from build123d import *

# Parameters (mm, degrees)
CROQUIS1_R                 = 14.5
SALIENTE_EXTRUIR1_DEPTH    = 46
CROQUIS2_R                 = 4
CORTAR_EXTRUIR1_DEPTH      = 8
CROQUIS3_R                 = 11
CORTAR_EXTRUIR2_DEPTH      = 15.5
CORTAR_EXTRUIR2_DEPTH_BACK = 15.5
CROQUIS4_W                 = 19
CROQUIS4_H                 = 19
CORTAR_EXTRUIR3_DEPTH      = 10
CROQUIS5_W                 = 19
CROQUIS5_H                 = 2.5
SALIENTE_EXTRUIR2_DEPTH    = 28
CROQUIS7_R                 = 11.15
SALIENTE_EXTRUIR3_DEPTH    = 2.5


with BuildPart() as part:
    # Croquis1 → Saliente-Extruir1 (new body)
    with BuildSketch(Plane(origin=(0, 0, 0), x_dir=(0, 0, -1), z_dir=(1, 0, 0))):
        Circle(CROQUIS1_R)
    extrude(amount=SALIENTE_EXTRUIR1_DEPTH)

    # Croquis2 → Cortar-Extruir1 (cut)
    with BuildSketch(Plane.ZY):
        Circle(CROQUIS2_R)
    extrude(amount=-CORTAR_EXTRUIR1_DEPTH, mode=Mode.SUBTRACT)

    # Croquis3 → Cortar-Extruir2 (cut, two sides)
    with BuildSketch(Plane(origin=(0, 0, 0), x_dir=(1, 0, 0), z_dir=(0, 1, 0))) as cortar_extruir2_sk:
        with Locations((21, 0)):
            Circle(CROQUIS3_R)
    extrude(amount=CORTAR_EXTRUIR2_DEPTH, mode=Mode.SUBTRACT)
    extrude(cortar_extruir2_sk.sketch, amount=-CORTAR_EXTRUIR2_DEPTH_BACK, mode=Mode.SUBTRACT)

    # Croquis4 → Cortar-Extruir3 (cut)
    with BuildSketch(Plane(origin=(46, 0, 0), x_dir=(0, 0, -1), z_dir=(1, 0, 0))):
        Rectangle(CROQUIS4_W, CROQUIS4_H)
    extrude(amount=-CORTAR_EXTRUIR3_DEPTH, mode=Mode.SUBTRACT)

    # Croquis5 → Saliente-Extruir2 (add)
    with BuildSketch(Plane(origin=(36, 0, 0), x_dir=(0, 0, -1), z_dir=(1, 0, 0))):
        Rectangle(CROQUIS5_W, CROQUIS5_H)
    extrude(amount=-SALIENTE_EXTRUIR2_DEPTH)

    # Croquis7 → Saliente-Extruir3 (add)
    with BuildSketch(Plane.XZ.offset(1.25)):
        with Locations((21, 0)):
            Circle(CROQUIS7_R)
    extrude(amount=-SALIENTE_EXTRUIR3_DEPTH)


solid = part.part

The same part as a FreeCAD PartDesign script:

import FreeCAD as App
import Part
import Sketcher
Q = App.Units.Quantity

doc = App.newDocument("Part")
params = doc.addObject("Spreadsheet::Sheet", "Params")
for row, (alias, value) in enumerate([
    ("sketch1_diameter", "29 mm"),
    ("pad1_length", "46 mm"),
    ("sketch2_diameter", "8 mm"),
    ("pocket1_length", "8 mm"),
    ("sketch3_diameter", "22 mm"),
    ("sketch4_width", "19 mm"),
    ("pocket3_length", "10 mm"),
    ("sketch5_height", "19 mm"),
    ("sketch5_width", "2.5 mm"),
    ("pad2_length", "28 mm"),
    ("sketch6_diameter", "22.3 mm"),
    ("pad3_length", "2.5 mm"),
], start=1):
    params.set(f"A{row}", alias)
    params.set(f"B{row}", "=" + value)
    params.setAlias(f"B{row}", alias)

body = doc.addObject("PartDesign::Body", "Body")

# Sketch on YZ plane
sketch1 = body.newObject("Sketcher::SketchObject", "Sketch")
sketch1.AttachmentSupport = (doc.getObject("YZ_Plane"), [""])
sketch1.MapMode = "FlatFace"
sketch1.addGeometry(Part.Circle(App.Vector(0, 0, 0), App.Vector(0, 0, 1), 14.5), False)
sketch1.addConstraint([
    Sketcher.Constraint("Coincident", 0, 3, -1, 1),
    Sketcher.Constraint("Diameter", 0, Q("29 mm")),
])
sketch1.setExpression("Constraints[1]", "Params.sketch1_diameter")
pad1 = body.newObject("PartDesign::Pad", "Pad")
pad1.Profile = sketch1
pad1.setExpression("Length", "Params.pad1_length")

# Sketch on YZ plane
sketch2 = body.newObject("Sketcher::SketchObject", "Sketch001")
sketch2.AttachmentSupport = (doc.getObject("YZ_Plane"), [""])
sketch2.MapMode = "FlatFace"
sketch2.addGeometry(Part.Circle(App.Vector(0, 0, 0), App.Vector(0, 0, 1), 4), False)
sketch2.addConstraint([
    Sketcher.Constraint("Coincident", 0, 3, -1, 1),
    Sketcher.Constraint("Diameter", 0, Q("8 mm")),
])
sketch2.setExpression("Constraints[1]", "Params.sketch2_diameter")
pocket1 = body.newObject("PartDesign::Pocket", "Pocket")
pocket1.Profile = sketch2
pocket1.setExpression("Length", "Params.pocket1_length")
pocket1.Reversed = True

# Sketch on XZ plane
sketch3 = body.newObject("Sketcher::SketchObject", "Sketch002")
sketch3.AttachmentSupport = (doc.getObject("XZ_Plane"), [""])
sketch3.MapMode = "FlatFace"
sketch3.addGeometry(Part.Circle(App.Vector(21, 0, 0), App.Vector(0, 0, 1), 11), False)
sketch3.addConstraint([
    Sketcher.Constraint("PointOnObject", 0, 3, -1),
    Sketcher.Constraint("Diameter", 0, Q("22 mm")),
    Sketcher.Constraint("DistanceX", -1, 1, 0, 3, Q("21 mm")),
])
sketch3.setExpression("Constraints[1]", "Params.sketch3_diameter")
pocket2 = body.newObject("PartDesign::Pocket", "Pocket001")
pocket2.Profile = sketch3
pocket2.Type = "ThroughAll"
pocket2.Midplane = True

# Sketch on YZ plane
sketch4 = body.newObject("Sketcher::SketchObject", "Sketch003")
sketch4.AttachmentSupport = (doc.getObject("YZ_Plane"), [""])
sketch4.MapMode = "FlatFace"
sketch4.AttachmentOffset = App.Placement(App.Vector(0, 0, 46), App.Rotation())
sketch4.addGeometry([
    Part.LineSegment(App.Vector(9.5, 9.5, 0), App.Vector(-9.5, 9.5, 0)),
    Part.LineSegment(App.Vector(-9.5, 9.5, 0), App.Vector(-9.5, -9.5, 0)),
    Part.LineSegment(App.Vector(-9.5, -9.5, 0), App.Vector(9.5, -9.5, 0)),
    Part.LineSegment(App.Vector(9.5, -9.5, 0), App.Vector(9.5, 9.5, 0)),
], False)
sketch4.addConstraint([
    Sketcher.Constraint("Coincident", 0, 2, 1, 1),
    Sketcher.Constraint("Coincident", 1, 2, 2, 1),
    Sketcher.Constraint("Coincident", 2, 2, 3, 1),
    Sketcher.Constraint("Coincident", 3, 2, 0, 1),
    Sketcher.Constraint("Horizontal", 0),
    Sketcher.Constraint("Vertical", 1),
    Sketcher.Constraint("Horizontal", 2),
    Sketcher.Constraint("Vertical", 3),
    Sketcher.Constraint("Symmetric", 0, 2, 2, 2, -1, 1),
    Sketcher.Constraint("Equal", 2, 1),
    Sketcher.Constraint("DistanceX", 0, 2, 0, 1, Q("19 mm")),
])
sketch4.setExpression("Constraints[10]", "Params.sketch4_width")
pocket3 = body.newObject("PartDesign::Pocket", "Pocket002")
pocket3.Profile = sketch4
pocket3.setExpression("Length", "Params.pocket3_length")

# Sketch on YZ plane
sketch5 = body.newObject("Sketcher::SketchObject", "Sketch004")
sketch5.AttachmentSupport = (doc.getObject("YZ_Plane"), [""])
sketch5.MapMode = "FlatFace"
sketch5.AttachmentOffset = App.Placement(App.Vector(0, 0, 36), App.Rotation())
sketch5.addGeometry([
    Part.LineSegment(App.Vector(1.25, 9.5, 0), App.Vector(-1.25, 9.5, 0)),
    Part.LineSegment(App.Vector(-1.25, 9.5, 0), App.Vector(-1.25, -9.5, 0)),
    Part.LineSegment(App.Vector(-1.25, -9.5, 0), App.Vector(1.25, -9.5, 0)),
    Part.LineSegment(App.Vector(1.25, -9.5, 0), App.Vector(1.25, 9.5, 0)),
], False)
sketch5.addConstraint([
    Sketcher.Constraint("Coincident", 0, 2, 1, 1),
    Sketcher.Constraint("Coincident", 1, 2, 2, 1),
    Sketcher.Constraint("Coincident", 2, 2, 3, 1),
    Sketcher.Constraint("Coincident", 3, 2, 0, 1),
    Sketcher.Constraint("Horizontal", 0),
    Sketcher.Constraint("Vertical", 1),
    Sketcher.Constraint("Horizontal", 2),
    Sketcher.Constraint("Vertical", 3),
    Sketcher.Constraint("Symmetric", 0, 2, 2, 2, -1, 1),
    Sketcher.Constraint("DistanceY", 1, 2, 1, 1, Q("19 mm")),
    Sketcher.Constraint("DistanceX", 0, 2, 0, 1, Q("2.5 mm")),
])
sketch5.setExpression("Constraints[9]", "Params.sketch5_height")
sketch5.setExpression("Constraints[10]", "Params.sketch5_width")
pad2 = body.newObject("PartDesign::Pad", "Pad001")
pad2.Profile = sketch5
pad2.setExpression("Length", "Params.pad2_length")
pad2.Reversed = True

# Sketch on XZ plane
sketch6 = body.newObject("Sketcher::SketchObject", "Sketch005")
sketch6.AttachmentSupport = (doc.getObject("XZ_Plane"), [""])
sketch6.MapMode = "FlatFace"
sketch6.AttachmentOffset = App.Placement(App.Vector(0, 0, 1.25), App.Rotation())
sketch6.addGeometry(Part.Circle(App.Vector(21, 0, 0), App.Vector(0, 0, 1), 11.15), False)
sketch6.addConstraint([
    Sketcher.Constraint("PointOnObject", 0, 3, -1),
    Sketcher.Constraint("Diameter", 0, Q("22.3 mm")),
    Sketcher.Constraint("DistanceX", -1, 1, 0, 3, Q("21 mm")),
])
sketch6.setExpression("Constraints[1]", "Params.sketch6_diameter")
pad3 = body.newObject("PartDesign::Pad", "Pad002")
pad3.Profile = sketch6
pad3.setExpression("Length", "Params.pad3_length")
pad3.Reversed = True

doc.recompute()
